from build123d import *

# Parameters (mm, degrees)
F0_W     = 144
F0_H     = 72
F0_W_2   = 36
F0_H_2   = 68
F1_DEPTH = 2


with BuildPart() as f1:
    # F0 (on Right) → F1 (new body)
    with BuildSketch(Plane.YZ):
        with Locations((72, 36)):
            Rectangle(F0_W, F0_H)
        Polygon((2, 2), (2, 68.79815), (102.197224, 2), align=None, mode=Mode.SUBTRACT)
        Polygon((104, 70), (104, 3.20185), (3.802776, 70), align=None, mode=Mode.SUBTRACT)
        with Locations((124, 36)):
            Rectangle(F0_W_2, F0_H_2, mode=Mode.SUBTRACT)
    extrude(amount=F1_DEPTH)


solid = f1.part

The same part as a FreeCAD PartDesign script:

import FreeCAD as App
import Part
import Sketcher


def add_polygon(sketch, points):
    """Adds a closed chain of lines whose ends are joined by coincident constraints."""
    first, n = sketch.GeometryCount, len(points)
    for a, b in zip(points, points[1:] + points[:1]):
        sketch.addGeometry(Part.LineSegment(App.Vector(*a, 0), App.Vector(*b, 0)), False)
    for i in range(n):
        sketch.addConstraint(Sketcher.Constraint("Coincident", first + i, 2, first + (i + 1) % n, 1))

doc = App.newDocument("Part")
body = doc.addObject("PartDesign::Body", "Body")

# Sketch on YZ plane
sketch1 = body.newObject("Sketcher::SketchObject", "Sketch")
sketch1.AttachmentSupport = (doc.getObject("YZ_Plane"), [""])
sketch1.MapMode = "FlatFace"
add_polygon(sketch1, [(0, 72), (0, 0), (144, 0), (144, 72)])  # lines 0-3
add_polygon(sketch1, [(102, 2), (2, 2), (2, 69)])  # lines 4-6
add_polygon(sketch1, [(4, 70), (104, 70), (104, 3)])  # lines 7-9
add_polygon(sketch1, [(142, 2), (106, 2), (106, 70), (142, 70)])  # lines 10-13
sketch1.addConstraint([
    Sketcher.Constraint("Vertical", 0),
    Sketcher.Constraint("Horizontal", 1),
    Sketcher.Constraint("Vertical", 2),
    Sketcher.Constraint("Horizontal", 3),
    Sketcher.Constraint("Horizontal", 4),
    Sketcher.Constraint("Vertical", 5),
    Sketcher.Constraint("Horizontal", 7),
    Sketcher.Constraint("Vertical", 8),
    Sketcher.Constraint("Horizontal", 10),
    Sketcher.Constraint("Vertical", 11),
    Sketcher.Constraint("Horizontal", 12),
    Sketcher.Constraint("Vertical", 13),
    Sketcher.Constraint("Coincident", 0, 2, -1, 1),
    Sketcher.Constraint("Parallel", 6, 9),
    Sketcher.Constraint("Horizontal", 6, 2, 10, 2),
    Sketcher.Constraint("Horizontal", 9, 2, 11, 2),
    Sketcher.Constraint("Equal", 4, 7),
    Sketcher.Constraint("DistanceX", 1, 1, 1, 2, 144.0),
    Sketcher.Constraint("DistanceX", 10, 2, 10, 1, 36.0),
    Sketcher.Constraint("DistanceY", 0, 2, 0, 1, 72.0),
    Sketcher.Constraint("DistanceY", 11, 1, 11, 2, 68.0),
    Sketcher.Constraint("DistanceX", -1, 1, 4, 2, 2.0),
    Sketcher.Constraint("DistanceY", -1, 1, 4, 2, 2.0),
    Sketcher.Constraint("DistanceX", -1, 1, 7, 2, 104.0),
    Sketcher.Constraint("DistanceX", -1, 1, 10, 2, 106.0),
    Sketcher.Constraint("DistanceY", 5, 1, 5, 2, 66.79815),
    Sketcher.Constraint("DistanceX", 4, 2, 4, 1, 100.197224),
])
pad1 = body.newObject("PartDesign::Pad", "Pad")
pad1.Profile = sketch1
pad1.Length = 2

doc.recompute()
